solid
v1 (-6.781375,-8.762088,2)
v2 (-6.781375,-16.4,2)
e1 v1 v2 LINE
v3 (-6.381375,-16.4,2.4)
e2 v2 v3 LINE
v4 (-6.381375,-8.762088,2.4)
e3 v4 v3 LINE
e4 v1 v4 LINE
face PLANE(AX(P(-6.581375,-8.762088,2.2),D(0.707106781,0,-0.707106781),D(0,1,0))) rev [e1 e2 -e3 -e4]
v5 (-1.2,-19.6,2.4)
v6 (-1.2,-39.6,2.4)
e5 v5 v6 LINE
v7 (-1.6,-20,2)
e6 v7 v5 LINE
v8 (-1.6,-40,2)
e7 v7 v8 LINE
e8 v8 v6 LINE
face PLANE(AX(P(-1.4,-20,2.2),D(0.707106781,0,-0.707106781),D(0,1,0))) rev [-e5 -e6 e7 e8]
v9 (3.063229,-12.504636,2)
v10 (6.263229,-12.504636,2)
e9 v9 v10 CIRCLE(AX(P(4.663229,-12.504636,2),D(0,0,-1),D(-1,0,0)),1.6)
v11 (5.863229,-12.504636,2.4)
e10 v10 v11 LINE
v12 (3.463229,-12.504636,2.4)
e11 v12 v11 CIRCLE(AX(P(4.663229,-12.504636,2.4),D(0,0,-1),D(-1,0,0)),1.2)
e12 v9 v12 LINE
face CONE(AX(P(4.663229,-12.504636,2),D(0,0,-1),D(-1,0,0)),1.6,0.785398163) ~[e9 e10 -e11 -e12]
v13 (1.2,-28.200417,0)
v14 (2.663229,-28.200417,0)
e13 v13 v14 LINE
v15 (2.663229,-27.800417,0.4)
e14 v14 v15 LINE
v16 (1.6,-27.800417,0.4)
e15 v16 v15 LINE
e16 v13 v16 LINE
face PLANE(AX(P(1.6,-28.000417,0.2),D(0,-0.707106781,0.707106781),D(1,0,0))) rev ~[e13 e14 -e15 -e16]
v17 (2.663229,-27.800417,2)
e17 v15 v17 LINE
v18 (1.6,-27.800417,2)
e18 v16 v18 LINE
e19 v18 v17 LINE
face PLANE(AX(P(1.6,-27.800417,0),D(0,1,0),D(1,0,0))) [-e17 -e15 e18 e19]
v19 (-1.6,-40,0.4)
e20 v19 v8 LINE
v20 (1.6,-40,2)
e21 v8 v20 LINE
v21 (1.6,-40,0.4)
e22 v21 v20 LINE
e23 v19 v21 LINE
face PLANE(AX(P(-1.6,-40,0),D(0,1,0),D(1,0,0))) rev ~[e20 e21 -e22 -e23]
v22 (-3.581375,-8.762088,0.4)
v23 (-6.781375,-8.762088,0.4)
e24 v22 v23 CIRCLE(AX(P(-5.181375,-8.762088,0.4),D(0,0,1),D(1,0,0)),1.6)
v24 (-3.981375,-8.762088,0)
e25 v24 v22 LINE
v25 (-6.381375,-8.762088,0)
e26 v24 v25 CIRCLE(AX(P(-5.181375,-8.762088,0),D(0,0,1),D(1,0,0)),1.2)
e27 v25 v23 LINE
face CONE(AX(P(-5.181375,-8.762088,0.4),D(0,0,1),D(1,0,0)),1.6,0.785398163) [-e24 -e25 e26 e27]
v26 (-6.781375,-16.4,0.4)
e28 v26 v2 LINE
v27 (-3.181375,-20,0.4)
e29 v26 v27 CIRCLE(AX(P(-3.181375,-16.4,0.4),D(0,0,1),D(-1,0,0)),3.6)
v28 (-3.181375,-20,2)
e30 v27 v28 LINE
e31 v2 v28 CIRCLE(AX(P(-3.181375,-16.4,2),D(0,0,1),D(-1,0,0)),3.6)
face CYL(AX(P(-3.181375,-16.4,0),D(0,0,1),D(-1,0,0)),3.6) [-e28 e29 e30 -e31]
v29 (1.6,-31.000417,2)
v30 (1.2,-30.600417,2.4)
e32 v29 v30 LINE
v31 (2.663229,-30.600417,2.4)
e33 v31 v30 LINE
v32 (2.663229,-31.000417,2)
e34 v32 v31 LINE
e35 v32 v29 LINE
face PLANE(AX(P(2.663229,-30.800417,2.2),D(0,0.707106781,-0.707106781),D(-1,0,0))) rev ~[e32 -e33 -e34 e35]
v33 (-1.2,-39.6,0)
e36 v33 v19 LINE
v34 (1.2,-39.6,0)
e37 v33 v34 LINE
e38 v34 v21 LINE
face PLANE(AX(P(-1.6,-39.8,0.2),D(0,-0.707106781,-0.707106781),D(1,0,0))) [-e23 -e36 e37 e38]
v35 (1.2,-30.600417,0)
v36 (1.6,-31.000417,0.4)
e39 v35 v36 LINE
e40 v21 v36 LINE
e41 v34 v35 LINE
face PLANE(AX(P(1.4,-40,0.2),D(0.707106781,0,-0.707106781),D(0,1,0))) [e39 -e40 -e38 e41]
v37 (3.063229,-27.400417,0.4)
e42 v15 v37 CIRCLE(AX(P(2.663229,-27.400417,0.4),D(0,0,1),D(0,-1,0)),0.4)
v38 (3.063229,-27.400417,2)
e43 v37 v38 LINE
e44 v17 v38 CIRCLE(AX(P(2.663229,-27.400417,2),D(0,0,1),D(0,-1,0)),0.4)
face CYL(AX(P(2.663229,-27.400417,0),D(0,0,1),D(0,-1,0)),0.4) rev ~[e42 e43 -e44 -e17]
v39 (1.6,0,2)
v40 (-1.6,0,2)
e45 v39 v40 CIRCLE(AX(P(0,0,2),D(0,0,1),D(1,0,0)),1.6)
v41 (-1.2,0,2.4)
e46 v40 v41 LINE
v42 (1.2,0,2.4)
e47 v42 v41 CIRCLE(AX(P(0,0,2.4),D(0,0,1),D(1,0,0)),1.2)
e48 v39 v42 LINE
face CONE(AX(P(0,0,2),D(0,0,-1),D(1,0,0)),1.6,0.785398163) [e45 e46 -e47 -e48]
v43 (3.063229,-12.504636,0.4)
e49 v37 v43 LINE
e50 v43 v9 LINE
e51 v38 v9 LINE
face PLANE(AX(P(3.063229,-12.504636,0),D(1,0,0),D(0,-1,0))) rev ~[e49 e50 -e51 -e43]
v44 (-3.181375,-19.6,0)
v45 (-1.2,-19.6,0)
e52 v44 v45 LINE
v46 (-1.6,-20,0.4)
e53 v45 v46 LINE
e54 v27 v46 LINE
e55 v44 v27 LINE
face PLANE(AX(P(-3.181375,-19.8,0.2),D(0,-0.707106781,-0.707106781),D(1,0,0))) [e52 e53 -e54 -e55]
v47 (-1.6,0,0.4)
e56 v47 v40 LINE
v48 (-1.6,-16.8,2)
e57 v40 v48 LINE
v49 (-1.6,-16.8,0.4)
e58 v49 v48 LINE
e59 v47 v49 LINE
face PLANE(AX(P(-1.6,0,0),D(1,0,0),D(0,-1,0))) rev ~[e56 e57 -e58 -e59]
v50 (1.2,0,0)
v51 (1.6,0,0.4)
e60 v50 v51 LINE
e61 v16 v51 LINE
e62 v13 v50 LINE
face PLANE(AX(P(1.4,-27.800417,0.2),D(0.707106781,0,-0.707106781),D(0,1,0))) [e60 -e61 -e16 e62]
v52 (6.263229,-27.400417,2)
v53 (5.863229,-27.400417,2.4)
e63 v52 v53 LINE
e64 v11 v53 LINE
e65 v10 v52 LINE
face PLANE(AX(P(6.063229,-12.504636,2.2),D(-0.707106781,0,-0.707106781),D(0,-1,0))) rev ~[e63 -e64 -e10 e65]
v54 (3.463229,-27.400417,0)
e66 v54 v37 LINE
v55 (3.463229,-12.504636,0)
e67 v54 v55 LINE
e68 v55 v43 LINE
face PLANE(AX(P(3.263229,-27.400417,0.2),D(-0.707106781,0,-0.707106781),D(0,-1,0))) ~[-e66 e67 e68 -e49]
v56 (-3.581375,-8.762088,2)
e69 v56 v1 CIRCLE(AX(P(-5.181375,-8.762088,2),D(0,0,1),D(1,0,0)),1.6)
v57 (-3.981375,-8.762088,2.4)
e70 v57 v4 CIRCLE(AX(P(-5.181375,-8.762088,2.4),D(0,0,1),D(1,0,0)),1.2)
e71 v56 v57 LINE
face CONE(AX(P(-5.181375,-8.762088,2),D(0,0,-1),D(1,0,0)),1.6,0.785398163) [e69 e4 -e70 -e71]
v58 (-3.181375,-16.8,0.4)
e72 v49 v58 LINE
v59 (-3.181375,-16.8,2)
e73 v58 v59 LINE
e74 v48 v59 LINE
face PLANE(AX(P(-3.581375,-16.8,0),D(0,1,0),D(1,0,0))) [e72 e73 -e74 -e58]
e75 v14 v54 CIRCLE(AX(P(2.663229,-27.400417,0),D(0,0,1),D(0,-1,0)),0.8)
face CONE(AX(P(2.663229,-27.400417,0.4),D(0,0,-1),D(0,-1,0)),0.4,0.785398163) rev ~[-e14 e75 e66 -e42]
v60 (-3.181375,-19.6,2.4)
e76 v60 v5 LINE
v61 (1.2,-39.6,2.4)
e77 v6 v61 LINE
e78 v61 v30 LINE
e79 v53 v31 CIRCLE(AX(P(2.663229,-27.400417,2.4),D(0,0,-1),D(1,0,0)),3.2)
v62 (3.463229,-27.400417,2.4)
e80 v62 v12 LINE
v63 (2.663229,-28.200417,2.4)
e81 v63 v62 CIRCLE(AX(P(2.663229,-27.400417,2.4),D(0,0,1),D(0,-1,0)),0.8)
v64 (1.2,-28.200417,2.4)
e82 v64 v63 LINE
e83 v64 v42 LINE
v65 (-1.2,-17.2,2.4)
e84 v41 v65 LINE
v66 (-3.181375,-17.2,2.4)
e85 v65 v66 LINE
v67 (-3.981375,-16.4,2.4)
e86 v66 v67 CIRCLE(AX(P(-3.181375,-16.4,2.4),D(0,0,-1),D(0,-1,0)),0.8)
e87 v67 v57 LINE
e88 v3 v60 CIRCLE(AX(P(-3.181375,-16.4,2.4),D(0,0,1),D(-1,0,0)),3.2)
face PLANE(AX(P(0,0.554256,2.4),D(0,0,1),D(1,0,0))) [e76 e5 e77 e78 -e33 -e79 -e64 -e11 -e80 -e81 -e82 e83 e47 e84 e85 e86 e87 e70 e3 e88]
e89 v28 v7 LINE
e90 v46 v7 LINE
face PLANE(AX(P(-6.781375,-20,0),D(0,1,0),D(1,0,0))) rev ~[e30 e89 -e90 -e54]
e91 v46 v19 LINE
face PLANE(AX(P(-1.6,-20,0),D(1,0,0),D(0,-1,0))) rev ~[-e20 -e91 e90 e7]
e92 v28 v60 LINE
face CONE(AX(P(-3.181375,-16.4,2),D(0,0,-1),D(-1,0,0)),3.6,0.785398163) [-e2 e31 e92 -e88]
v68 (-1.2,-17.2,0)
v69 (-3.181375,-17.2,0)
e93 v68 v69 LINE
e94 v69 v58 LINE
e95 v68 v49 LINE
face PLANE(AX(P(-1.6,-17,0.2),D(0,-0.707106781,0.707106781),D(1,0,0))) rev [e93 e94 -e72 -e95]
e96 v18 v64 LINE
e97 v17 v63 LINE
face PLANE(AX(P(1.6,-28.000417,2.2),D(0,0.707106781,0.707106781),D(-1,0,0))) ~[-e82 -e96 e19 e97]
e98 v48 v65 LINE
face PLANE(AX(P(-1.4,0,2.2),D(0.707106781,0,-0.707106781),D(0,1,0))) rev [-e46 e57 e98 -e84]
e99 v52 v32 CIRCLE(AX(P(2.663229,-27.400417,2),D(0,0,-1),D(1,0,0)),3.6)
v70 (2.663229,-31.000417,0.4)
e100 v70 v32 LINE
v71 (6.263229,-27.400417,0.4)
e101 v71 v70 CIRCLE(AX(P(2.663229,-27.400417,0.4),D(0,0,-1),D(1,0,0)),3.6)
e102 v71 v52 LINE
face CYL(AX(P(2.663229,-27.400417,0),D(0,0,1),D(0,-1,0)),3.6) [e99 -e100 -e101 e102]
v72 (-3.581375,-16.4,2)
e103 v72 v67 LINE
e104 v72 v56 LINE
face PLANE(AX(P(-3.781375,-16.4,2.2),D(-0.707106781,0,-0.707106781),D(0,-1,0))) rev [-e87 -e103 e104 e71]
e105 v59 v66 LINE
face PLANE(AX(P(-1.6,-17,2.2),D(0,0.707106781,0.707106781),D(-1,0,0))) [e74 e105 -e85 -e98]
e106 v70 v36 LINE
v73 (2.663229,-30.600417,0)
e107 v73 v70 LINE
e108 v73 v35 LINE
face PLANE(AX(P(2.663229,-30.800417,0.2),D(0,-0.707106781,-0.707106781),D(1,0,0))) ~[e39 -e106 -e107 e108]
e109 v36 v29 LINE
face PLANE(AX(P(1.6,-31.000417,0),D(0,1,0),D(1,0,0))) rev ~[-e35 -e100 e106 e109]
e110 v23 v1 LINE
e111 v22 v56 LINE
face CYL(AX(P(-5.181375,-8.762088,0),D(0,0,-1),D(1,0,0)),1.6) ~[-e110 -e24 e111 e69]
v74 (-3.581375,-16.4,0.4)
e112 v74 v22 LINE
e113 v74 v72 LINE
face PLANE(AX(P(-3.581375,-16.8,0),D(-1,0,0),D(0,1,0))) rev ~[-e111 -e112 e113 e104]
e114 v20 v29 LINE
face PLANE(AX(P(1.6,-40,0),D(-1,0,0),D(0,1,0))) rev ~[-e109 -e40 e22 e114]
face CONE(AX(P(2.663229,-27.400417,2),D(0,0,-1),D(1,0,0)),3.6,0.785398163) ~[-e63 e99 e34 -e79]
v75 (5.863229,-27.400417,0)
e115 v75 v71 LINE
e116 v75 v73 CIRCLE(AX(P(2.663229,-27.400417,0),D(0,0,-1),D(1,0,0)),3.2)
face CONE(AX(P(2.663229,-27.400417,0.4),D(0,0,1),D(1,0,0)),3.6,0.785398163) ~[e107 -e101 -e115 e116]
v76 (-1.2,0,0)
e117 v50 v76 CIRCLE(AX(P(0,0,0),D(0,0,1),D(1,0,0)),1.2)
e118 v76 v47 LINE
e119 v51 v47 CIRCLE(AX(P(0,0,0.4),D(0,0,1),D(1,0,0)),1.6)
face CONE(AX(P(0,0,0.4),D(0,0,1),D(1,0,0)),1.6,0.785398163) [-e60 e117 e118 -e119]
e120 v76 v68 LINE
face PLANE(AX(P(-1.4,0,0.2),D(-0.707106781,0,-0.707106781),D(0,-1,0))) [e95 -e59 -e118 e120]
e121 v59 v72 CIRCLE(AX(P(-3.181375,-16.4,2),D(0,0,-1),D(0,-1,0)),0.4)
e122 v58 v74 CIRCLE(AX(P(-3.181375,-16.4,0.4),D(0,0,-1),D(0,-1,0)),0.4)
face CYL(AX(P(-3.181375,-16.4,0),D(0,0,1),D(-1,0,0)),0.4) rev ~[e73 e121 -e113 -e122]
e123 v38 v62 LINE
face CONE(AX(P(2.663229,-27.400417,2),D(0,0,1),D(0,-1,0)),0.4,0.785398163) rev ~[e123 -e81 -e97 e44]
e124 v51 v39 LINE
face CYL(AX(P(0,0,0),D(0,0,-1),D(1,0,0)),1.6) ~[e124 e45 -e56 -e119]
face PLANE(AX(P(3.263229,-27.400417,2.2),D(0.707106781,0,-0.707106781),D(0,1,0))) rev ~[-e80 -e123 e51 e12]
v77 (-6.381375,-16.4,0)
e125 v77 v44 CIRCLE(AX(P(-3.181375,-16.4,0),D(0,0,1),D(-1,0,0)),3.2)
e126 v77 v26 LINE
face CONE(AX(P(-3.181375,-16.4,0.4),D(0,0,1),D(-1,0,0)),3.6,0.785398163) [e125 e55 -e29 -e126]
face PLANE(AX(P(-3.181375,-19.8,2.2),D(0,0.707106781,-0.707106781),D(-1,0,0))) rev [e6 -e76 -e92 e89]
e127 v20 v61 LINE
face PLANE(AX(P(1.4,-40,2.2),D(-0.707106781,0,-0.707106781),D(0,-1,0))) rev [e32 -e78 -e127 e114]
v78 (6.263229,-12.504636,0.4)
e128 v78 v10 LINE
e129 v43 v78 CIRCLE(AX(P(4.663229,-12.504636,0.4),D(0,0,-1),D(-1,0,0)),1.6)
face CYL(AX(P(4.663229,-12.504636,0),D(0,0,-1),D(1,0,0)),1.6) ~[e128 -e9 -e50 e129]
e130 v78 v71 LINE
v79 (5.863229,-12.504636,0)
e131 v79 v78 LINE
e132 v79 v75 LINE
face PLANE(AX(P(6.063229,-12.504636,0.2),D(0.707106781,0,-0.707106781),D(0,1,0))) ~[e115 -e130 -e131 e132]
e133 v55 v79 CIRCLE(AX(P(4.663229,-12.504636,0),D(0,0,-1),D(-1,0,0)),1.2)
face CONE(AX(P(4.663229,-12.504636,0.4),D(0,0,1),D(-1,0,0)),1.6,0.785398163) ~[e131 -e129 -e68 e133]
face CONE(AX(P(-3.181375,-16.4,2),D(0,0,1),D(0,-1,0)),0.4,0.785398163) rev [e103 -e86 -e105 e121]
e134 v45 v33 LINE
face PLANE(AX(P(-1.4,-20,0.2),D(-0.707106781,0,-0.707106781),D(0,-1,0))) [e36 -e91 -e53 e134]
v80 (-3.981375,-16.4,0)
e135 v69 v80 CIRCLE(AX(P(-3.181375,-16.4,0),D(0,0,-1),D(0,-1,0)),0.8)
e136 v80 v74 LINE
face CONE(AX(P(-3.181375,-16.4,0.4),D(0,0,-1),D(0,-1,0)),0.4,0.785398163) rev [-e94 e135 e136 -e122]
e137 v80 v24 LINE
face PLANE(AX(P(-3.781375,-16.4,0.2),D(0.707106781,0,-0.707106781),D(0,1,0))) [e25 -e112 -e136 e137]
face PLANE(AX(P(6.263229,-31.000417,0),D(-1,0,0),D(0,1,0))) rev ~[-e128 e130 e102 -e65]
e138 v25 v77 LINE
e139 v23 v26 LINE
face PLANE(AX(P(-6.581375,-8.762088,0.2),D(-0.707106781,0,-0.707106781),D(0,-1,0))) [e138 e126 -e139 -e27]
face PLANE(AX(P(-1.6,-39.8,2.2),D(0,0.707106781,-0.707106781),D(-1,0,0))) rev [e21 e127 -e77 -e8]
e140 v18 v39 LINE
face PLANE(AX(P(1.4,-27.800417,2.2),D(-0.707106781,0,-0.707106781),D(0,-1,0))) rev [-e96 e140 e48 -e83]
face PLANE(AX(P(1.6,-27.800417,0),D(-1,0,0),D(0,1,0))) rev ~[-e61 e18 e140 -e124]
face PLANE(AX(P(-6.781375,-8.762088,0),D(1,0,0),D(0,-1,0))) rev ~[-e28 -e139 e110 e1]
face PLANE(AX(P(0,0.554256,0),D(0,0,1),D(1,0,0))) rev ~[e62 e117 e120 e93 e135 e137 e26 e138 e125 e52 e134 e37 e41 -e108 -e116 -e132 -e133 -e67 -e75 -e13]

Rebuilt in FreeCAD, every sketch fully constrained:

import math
import FreeCAD as App
import Part
import Sketcher

V = App.Vector
Q = App.Units.Quantity


def edges_at(feature, points):
    """Names of the edges that pass closest to the given points."""
    edges = feature.Shape.Edges
    near = lambda p: min(range(len(edges)), key=lambda i: edges[i].distToShape(Part.Vertex(*p))[0])
    return sorted({f"Edge{near(p) + 1}" for p in points})

doc = App.newDocument("Part")
body = doc.addObject("PartDesign::Body", "Body")

# Sketch on XY plane
sketch1 = doc.addObject("Sketcher::SketchObject", "Sketch")
body.addObject(sketch1)
sketch1.AttachmentSupport = (doc.XY_Plane, [""])
sketch1.MapMode = "FlatFace"
sketch1.addGeometry(Part.ArcOfCircle(Part.Circle(V(0, 0, 0), V(0, 0, 1), 1.6), math.radians(0), math.radians(180)), False)
sketch1.addGeometry(Part.LineSegment(V(-1.6, 0, 0), V(-1.6, -16.8, 0)), False)
sketch1.addGeometry(Part.LineSegment(V(-1.6, -16.8, 0), V(-3.6, -16.8, 0)), False)
sketch1.addGeometry(Part.LineSegment(V(-3.6, -16.8, 0), V(-3.6, -8.8, 0)), False)
sketch1.addGeometry(Part.ArcOfCircle(Part.Circle(V(-5.2, -8.8, 0), V(0, 0, 1), 1.6), math.radians(0), math.radians(180)), False)
sketch1.addGeometry(Part.LineSegment(V(-6.8, -8.8, 0), V(-6.8, -20, 0)), False)
sketch1.addGeometry(Part.LineSegment(V(-6.8, -20, 0), V(-1.6, -20, 0)), False)
sketch1.addGeometry(Part.LineSegment(V(-1.6, -20, 0), V(-1.6, -40, 0)), False)
sketch1.addGeometry(Part.LineSegment(V(-1.6, -40, 0), V(1.6, -40, 0)), False)
sketch1.addGeometry(Part.LineSegment(V(1.6, -40, 0), V(1.6, -31, 0)), False)
sketch1.addGeometry(Part.LineSegment(V(1.6, -31, 0), V(6.3, -31, 0)), False)
sketch1.addGeometry(Part.LineSegment(V(6.3, -31, 0), V(6.3, -12.5, 0)), False)
sketch1.addGeometry(Part.ArcOfCircle(Part.Circle(V(4.7, -12.5, 0), V(0, 0, 1), 1.6), math.radians(0), math.radians(180)), False)
sketch1.addGeometry(Part.LineSegment(V(3.1, -12.5, 0), V(3.1, -27.8, 0)), False)
sketch1.addGeometry(Part.LineSegment(V(3.1, -27.8, 0), V(1.6, -27.8, 0)), False)
sketch1.addGeometry(Part.LineSegment(V(1.6, -27.8, 0), V(1.6, 0, 0)), False)
sketch1.addConstraint(Sketcher.Constraint("Tangent", 0, 2, 1, 1))
sketch1.addConstraint(Sketcher.Constraint("Coincident", 1, 2, 2, 1))
sketch1.addConstraint(Sketcher.Constraint("Coincident", 2, 2, 3, 1))
sketch1.addConstraint(Sketcher.Constraint("Tangent", 3, 2, 4, 1))
sketch1.addConstraint(Sketcher.Constraint("Tangent", 4, 2, 5, 1))
sketch1.addConstraint(Sketcher.Constraint("Coincident", 5, 2, 6, 1))
sketch1.addConstraint(Sketcher.Constraint("Coincident", 6, 2, 7, 1))
sketch1.addConstraint(Sketcher.Constraint("Coincident", 7, 2, 8, 1))
sketch1.addConstraint(Sketcher.Constraint("Coincident", 8, 2, 9, 1))
sketch1.addConstraint(Sketcher.Constraint("Coincident", 9, 2, 10, 1))
sketch1.addConstraint(Sketcher.Constraint("Coincident", 10, 2, 11, 1))
sketch1.addConstraint(Sketcher.Constraint("Tangent", 11, 2, 12, 1))
sketch1.addConstraint(Sketcher.Constraint("Tangent", 12, 2, 13, 1))
sketch1.addConstraint(Sketcher.Constraint("Coincident", 13, 2, 14, 1))
sketch1.addConstraint(Sketcher.Constraint("Coincident", 14, 2, 15, 1))
sketch1.addConstraint(Sketcher.Constraint("Tangent", 15, 2, 0, 1))
sketch1.addConstraint(Sketcher.Constraint("Vertical", 1))
sketch1.addConstraint(Sketcher.Constraint("Horizontal", 2))
sketch1.addConstraint(Sketcher.Constraint("Vertical", 3))
sketch1.addConstraint(Sketcher.Constraint("Vertical", 5))
sketch1.addConstraint(Sketcher.Constraint("Horizontal", 6))
sketch1.addConstraint(Sketcher.Constraint("Vertical", 7))
sketch1.addConstraint(Sketcher.Constraint("Horizontal", 8))
sketch1.addConstraint(Sketcher.Constraint("Vertical", 9))
sketch1.addConstraint(Sketcher.Constraint("Horizontal", 10))
sketch1.addConstraint(Sketcher.Constraint("Vertical", 11))
sketch1.addConstraint(Sketcher.Constraint("Vertical", 13))
sketch1.addConstraint(Sketcher.Constraint("Horizontal", 14))
sketch1.addConstraint(Sketcher.Constraint("Vertical", 15))
sketch1.addConstraint(Sketcher.Constraint("Coincident", 0, 3, -1, 1))
sketch1.addConstraint(Sketcher.Constraint("Equal", 0, 4))
sketch1.addConstraint(Sketcher.Constraint("Equal", 4, 12))
sketch1.addConstraint(Sketcher.Constraint("Vertical", 1, 2, 6, 2))
sketch1.addConstraint(Sketcher.Constraint("Vertical", 9, 2, 14, 2))
sketch1.addConstraint(Sketcher.Constraint("Radius", 0, Q("1.6 mm")))
sketch1.addConstraint(Sketcher.Constraint("DistanceY", 7, 2, 7, 1, Q("20 mm")))
sketch1.addConstraint(Sketcher.Constraint("DistanceY", 1, 2, 1, 1, Q("16.8 mm")))
sketch1.addConstraint(Sketcher.Constraint("DistanceY", 5, 2, -1, 1, Q("20 mm")))
sketch1.addConstraint(Sketcher.Constraint("DistanceY", 9, 2, 13, 2, Q("3.2 mm")))
sketch1.addConstraint(Sketcher.Constraint("DistanceX", 10, 1, 10, 2, Q("4.663229 mm")))
sketch1.addConstraint(Sketcher.Constraint("DistanceY", 11, 1, 11, 2, Q("18.49578 mm")))
sketch1.addConstraint(Sketcher.Constraint("DistanceX", 2, 2, 2, 1, Q("1.981375 mm")))
sketch1.addConstraint(Sketcher.Constraint("DistanceY", 3, 1, 3, 2, Q("8.037912 mm")))
sketch1.addConstraint(Sketcher.Constraint("DistanceY", 9, 1, 9, 2, Q("8.999583 mm")))
pad1 = doc.addObject("PartDesign::Pad", "Pad")
body.addObject(pad1)
pad1.Profile = sketch1
pad1.Length = 2.4
doc.recompute()

fillet = doc.addObject("PartDesign::Fillet", "Fillet")
body.addObject(fillet)
fillet.Base = (pad1, edges_at(pad1, [(-6.781, -20, 1.2), (6.263, -31, 1.2)]))
fillet.Radius = 3.6
doc.recompute()

fillet2 = doc.addObject("PartDesign::Fillet", "Fillet001")
body.addObject(fillet2)
fillet2.Base = (fillet, edges_at(fillet, [(-3.581, -16.8, 1.2), (3.063, -27.8, 1.2)]))
fillet2.Radius = 0.4
doc.recompute()

chamfer = doc.addObject("PartDesign::Chamfer", "Chamfer")
body.addObject(chamfer)
chamfer.Base = (fillet2, edges_at(fillet2, [
    (-3.581, -12.581, 2.4),
    (-3.464, -16.683, 2.4),
    (-5.181, -7.162, 2.4),
    (-2.391, -16.8, 2.4),
    (-6.781, -12.581, 2.4),
    (-1.6, -8.4, 2.4),
    (-5.727, -18.946, 2.4),
    (0, 1.6, 2.4),
    (-2.391, -20, 2.4),
    (1.6, -13.9, 2.4),
    (-1.6, -30, 2.4),
    (2.132, -27.8, 2.4),
    (0, -40, 2.4),
    (2.946, -27.683, 2.4),
    (1.6, -35.5, 2.4),
    (3.063, -19.953, 2.4),
    (2.132, -31, 2.4),
    (4.663, -10.905, 2.4),
    (5.209, -29.946, 2.4),
    (6.263, -19.953, 2.4),
    (-3.581, -12.581, 0),
    (-3.464, -16.683, 0),
    (-5.181, -7.162, 0),
    (-2.391, -16.8, 0),
    (-6.781, -12.581, 0),
    (-1.6, -8.4, 0),
    (-5.727, -18.946, 0),
    (0, 1.6, 0),
    (-2.391, -20, 0),
    (1.6, -13.9, 0),
    (-1.6, -30, 0),
    (2.132, -27.8, 0),
    (0, -40, 0),
    (2.946, -27.683, 0),
    (1.6, -35.5, 0),
    (3.063, -19.953, 0),
    (2.132, -31, 0),
    (4.663, -10.905, 0),
    (5.209, -29.946, 0),
    (6.263, -19.953, 0),
]))
chamfer.Size = 0.4

doc.recompute()
